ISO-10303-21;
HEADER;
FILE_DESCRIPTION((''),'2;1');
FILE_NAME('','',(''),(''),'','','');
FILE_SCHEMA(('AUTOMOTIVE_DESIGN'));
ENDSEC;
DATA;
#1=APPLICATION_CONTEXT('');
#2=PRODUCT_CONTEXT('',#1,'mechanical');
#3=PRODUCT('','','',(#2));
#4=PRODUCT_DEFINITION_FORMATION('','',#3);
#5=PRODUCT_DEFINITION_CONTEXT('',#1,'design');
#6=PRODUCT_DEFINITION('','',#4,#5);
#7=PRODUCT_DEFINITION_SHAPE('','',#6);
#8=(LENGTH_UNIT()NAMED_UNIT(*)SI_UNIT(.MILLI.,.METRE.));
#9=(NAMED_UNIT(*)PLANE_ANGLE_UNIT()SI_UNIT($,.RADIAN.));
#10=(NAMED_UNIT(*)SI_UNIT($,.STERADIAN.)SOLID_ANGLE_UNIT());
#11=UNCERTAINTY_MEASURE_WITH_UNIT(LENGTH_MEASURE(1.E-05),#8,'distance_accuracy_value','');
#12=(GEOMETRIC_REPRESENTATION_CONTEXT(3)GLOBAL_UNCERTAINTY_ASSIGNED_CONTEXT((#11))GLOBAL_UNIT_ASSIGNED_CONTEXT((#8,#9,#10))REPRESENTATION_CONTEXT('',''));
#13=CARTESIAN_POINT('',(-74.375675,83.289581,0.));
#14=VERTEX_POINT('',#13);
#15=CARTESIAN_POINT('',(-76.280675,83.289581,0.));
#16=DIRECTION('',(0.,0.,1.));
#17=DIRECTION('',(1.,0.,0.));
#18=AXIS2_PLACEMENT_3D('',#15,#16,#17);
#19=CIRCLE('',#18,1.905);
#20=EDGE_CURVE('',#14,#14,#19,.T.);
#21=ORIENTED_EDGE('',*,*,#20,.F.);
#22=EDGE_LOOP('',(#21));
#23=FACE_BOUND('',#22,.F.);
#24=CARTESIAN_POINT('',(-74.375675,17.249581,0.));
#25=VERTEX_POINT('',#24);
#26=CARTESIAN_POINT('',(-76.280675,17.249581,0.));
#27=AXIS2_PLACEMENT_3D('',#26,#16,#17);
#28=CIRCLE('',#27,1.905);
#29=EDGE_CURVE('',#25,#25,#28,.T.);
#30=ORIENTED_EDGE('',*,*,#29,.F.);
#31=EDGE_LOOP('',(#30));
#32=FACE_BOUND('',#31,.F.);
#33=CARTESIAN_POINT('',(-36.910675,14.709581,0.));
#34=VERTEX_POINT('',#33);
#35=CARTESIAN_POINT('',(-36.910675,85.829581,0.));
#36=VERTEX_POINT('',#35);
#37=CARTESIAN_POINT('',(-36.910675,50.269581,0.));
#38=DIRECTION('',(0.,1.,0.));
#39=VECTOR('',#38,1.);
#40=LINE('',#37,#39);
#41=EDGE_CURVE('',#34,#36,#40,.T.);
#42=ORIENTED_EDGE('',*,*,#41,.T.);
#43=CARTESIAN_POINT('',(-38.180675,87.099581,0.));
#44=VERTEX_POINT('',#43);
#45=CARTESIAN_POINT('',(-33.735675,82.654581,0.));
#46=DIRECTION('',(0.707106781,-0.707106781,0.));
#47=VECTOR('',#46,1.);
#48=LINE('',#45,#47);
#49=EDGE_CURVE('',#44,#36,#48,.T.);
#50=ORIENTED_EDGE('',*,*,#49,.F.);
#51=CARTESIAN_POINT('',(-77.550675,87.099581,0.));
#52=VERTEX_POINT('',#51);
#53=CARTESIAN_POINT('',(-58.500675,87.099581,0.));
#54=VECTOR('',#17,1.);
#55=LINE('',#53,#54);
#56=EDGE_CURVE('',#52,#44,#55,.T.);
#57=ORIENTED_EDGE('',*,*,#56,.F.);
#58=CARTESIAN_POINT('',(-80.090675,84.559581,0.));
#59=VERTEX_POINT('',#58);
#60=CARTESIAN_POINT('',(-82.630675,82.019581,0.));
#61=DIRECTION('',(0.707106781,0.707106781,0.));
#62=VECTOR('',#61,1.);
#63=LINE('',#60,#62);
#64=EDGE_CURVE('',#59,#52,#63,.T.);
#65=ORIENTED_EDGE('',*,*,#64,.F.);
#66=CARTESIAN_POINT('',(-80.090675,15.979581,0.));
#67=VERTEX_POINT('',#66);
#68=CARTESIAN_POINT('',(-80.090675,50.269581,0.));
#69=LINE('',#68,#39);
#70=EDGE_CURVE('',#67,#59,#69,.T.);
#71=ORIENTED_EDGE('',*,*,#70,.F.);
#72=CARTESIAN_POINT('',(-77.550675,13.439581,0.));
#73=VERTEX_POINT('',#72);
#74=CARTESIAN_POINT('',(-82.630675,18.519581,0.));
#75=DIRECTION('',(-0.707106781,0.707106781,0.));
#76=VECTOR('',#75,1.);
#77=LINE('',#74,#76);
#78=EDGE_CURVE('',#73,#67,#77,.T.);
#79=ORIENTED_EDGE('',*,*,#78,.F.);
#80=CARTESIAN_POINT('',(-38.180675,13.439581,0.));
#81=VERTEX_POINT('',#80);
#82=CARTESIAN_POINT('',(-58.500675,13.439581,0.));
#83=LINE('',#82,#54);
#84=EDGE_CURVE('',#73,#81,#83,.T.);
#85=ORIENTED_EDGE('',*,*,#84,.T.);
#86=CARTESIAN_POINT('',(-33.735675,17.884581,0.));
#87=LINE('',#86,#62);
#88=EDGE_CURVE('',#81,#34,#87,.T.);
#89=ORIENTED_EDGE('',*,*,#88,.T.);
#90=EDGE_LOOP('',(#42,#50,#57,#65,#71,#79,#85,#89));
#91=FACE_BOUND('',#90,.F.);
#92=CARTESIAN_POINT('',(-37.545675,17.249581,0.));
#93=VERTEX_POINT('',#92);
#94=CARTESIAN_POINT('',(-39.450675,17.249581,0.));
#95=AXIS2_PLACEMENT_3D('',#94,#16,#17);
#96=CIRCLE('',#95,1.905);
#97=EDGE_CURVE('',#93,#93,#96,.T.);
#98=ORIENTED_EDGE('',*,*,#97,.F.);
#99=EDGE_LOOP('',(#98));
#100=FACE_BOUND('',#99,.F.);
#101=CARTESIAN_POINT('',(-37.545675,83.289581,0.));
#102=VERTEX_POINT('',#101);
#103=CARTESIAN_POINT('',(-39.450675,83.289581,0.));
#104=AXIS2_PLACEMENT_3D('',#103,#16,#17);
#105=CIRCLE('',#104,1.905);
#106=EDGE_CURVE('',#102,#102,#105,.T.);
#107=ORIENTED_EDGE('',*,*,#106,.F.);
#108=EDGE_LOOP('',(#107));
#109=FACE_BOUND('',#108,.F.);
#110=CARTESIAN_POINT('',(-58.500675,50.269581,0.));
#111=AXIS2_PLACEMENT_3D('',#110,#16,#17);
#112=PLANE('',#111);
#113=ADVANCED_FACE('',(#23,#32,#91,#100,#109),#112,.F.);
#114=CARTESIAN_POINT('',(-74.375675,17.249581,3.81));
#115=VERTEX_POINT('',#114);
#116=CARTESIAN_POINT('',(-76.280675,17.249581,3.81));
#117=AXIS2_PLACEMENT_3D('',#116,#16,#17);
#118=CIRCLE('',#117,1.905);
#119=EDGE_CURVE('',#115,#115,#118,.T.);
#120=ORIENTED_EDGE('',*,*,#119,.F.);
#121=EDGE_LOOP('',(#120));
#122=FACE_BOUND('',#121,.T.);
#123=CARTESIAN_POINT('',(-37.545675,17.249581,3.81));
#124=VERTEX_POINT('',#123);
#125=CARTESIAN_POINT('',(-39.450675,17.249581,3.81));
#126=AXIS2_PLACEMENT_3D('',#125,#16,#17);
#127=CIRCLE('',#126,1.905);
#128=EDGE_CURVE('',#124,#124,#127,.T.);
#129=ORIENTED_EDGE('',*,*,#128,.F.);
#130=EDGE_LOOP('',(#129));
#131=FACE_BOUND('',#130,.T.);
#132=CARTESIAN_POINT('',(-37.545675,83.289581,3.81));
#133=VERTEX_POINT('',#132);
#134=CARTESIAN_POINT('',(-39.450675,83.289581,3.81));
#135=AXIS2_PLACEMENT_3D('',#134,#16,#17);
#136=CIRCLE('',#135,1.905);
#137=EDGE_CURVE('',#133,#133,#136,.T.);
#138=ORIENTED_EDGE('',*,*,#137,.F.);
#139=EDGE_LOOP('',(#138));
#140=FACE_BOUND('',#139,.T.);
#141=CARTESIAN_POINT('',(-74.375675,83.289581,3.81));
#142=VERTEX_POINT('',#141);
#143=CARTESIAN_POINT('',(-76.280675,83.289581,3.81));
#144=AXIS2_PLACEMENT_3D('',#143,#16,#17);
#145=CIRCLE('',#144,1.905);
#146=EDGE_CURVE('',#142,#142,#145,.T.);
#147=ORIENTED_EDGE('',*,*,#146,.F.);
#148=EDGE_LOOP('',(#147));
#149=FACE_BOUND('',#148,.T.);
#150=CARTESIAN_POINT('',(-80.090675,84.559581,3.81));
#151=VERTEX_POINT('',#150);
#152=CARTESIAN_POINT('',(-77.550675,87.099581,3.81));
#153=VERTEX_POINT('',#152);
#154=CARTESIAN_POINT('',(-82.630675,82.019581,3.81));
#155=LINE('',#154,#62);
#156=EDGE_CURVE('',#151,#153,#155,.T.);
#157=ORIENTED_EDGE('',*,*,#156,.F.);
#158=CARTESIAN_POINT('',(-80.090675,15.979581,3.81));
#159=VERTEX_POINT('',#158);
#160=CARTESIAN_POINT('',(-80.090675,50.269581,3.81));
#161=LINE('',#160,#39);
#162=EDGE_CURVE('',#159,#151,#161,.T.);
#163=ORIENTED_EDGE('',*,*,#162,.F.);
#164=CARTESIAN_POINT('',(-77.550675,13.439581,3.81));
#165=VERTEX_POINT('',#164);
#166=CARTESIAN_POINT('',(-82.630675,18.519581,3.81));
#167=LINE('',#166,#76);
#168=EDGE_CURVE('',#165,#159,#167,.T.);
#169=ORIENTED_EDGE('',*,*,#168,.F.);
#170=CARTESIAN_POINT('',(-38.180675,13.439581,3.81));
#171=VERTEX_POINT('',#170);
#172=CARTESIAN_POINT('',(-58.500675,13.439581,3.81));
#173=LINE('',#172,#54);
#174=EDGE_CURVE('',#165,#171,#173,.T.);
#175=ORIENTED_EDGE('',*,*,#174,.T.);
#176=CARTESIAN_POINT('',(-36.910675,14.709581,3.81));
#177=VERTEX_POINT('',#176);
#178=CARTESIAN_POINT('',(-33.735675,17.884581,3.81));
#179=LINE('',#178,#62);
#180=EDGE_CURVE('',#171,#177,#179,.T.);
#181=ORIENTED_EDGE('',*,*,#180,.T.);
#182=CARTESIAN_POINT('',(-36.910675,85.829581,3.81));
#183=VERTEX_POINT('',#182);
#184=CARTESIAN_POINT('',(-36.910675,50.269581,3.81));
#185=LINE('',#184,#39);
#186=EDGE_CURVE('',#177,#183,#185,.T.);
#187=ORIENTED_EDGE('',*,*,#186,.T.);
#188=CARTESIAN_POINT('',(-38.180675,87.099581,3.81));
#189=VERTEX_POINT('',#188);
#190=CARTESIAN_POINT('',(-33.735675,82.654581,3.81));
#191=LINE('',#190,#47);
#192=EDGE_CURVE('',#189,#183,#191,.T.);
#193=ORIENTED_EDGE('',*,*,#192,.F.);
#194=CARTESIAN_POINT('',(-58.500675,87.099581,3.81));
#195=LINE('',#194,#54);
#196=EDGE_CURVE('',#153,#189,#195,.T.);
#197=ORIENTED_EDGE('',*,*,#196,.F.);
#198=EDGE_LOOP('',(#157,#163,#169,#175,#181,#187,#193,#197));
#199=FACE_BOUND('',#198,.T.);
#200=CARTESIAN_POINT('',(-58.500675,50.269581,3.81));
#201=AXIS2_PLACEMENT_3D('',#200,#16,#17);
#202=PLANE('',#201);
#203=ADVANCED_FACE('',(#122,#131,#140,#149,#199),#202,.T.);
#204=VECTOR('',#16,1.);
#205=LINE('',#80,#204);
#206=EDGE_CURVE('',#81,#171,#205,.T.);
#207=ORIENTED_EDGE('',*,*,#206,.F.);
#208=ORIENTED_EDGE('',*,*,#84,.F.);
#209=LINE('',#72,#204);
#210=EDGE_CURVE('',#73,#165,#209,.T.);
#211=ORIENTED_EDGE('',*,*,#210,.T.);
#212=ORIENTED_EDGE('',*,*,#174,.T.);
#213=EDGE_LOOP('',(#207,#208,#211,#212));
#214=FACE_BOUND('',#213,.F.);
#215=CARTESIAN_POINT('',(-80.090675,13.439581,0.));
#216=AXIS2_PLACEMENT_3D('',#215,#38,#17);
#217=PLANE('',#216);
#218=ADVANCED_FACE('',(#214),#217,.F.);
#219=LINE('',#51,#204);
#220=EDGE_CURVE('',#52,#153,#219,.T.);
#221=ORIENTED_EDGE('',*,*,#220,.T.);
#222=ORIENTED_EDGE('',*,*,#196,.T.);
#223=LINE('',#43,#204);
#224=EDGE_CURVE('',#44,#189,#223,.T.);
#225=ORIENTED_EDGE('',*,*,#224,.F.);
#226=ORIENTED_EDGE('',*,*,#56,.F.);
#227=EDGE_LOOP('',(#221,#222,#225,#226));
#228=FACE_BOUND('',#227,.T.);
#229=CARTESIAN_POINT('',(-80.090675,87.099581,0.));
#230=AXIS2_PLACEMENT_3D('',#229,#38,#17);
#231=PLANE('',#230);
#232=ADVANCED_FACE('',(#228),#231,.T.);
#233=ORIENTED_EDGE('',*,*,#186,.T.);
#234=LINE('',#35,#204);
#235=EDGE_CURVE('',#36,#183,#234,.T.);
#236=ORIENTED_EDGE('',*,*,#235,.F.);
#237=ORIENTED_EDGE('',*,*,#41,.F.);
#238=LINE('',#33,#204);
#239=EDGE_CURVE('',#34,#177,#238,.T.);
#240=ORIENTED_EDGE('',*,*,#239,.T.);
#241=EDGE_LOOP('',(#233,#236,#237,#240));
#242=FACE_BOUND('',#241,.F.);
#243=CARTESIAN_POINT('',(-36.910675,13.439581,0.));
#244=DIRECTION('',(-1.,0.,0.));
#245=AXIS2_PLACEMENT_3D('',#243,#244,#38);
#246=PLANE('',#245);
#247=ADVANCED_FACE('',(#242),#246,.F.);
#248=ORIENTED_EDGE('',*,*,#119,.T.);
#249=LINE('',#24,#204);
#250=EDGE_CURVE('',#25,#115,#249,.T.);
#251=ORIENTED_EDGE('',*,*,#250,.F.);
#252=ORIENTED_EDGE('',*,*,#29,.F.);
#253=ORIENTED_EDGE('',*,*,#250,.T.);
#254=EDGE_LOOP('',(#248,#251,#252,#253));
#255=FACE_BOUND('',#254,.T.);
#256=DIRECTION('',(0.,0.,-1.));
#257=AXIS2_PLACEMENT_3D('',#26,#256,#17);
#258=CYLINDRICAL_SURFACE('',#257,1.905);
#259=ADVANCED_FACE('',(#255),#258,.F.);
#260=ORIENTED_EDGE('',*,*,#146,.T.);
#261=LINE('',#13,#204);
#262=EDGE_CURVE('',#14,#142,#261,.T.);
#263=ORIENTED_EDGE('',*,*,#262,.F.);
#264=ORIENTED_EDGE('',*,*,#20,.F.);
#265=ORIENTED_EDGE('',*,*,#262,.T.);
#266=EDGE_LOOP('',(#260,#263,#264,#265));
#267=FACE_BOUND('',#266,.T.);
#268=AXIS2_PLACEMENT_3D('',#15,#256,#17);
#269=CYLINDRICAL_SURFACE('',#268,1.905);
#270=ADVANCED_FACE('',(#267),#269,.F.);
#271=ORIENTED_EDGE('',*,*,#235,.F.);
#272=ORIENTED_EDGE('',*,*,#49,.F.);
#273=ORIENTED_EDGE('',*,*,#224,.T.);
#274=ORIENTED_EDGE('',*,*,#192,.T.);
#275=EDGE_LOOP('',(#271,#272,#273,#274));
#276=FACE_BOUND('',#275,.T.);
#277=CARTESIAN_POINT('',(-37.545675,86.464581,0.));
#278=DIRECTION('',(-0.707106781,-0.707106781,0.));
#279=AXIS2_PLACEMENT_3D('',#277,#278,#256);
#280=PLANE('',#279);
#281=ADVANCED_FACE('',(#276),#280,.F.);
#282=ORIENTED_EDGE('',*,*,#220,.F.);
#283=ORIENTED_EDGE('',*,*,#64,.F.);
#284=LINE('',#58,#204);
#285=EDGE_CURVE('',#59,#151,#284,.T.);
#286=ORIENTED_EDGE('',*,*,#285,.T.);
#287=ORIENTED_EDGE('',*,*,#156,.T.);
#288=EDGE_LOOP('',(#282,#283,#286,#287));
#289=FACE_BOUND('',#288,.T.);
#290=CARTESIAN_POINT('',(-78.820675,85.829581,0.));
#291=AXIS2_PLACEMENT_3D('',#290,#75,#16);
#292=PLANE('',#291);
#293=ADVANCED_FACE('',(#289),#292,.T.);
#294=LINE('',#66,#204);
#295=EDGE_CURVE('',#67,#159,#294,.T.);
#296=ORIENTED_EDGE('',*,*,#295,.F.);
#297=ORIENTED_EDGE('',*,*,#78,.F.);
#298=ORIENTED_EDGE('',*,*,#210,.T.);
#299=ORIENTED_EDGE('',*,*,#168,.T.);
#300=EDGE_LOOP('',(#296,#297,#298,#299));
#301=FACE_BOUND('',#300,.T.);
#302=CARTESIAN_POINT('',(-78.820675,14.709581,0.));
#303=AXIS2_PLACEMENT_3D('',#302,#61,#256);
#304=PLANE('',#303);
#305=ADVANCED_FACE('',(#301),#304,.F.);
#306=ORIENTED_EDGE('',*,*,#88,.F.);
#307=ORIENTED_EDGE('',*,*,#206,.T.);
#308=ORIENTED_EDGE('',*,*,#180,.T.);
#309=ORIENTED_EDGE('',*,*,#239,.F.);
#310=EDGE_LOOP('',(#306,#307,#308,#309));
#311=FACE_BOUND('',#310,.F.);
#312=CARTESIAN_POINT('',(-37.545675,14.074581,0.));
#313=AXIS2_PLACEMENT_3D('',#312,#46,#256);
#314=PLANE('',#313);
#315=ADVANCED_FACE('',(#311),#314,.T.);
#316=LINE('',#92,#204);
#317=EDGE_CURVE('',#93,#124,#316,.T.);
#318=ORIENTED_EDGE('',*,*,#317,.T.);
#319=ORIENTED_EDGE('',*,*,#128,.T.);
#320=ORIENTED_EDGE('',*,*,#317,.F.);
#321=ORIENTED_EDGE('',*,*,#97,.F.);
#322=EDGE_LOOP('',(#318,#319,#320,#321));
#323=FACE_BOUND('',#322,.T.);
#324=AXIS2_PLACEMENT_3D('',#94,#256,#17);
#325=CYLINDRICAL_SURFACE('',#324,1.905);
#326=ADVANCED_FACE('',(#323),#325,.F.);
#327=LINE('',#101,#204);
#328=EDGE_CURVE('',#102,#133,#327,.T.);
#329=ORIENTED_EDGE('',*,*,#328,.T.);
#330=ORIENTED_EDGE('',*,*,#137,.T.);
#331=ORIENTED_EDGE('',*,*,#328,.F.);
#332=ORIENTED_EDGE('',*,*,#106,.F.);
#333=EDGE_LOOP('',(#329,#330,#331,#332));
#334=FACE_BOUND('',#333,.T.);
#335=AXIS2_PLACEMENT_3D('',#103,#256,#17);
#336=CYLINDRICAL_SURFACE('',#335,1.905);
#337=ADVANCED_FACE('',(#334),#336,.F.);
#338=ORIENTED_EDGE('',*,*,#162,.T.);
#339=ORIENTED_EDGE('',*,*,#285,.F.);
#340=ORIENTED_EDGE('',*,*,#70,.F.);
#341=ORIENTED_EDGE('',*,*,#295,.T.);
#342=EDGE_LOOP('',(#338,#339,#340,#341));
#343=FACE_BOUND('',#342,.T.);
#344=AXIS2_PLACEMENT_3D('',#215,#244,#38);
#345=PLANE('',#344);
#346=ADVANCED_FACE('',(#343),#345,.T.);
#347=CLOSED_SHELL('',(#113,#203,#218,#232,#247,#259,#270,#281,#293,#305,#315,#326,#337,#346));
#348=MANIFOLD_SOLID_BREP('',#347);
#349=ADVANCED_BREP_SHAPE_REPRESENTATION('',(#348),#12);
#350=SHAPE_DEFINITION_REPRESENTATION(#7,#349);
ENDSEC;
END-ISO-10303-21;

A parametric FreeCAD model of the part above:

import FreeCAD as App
import Part
import Sketcher
Q = App.Units.Quantity


def edges_at(feature, points):
    """Names of the edges that pass closest to the given points."""
    edges = feature.Shape.Edges
    near = lambda p: min(range(len(edges)), key=lambda i: edges[i].distToShape(Part.Vertex(*p))[0])
    return sorted({f"Edge{near(p) + 1}" for p in points})


def add_polygon(sketch, points):
    """Adds a closed chain of lines whose ends are joined by coincident constraints."""
    first, n = sketch.GeometryCount, len(points)
    for a, b in zip(points, points[1:] + points[:1]):
        sketch.addGeometry(Part.LineSegment(App.Vector(*a, 0), App.Vector(*b, 0)), False)
    for i in range(n):
        sketch.addConstraint(Sketcher.Constraint("Coincident", first + i, 2, first + (i + 1) % n, 1))

doc = App.newDocument("Part")
body = doc.addObject("PartDesign::Body", "Body")

sketch1 = doc.addObject("Sketcher::SketchObject", "Sketch")
body.addObject(sketch1)
sketch1.AttachmentSupport = (doc.XY_Plane, [""])
sketch1.MapMode = "FlatFace"
add_polygon(sketch1, [(-80.090675, 87.099581), (-80.090675, 13.439581), (-36.910675, 13.439581), (-36.910675, 87.099581)])
sketch1.addGeometry(Part.Circle(App.Vector(-76.280675, 17.249581, 0), App.Vector(0, 0, 1), 1.905), False)
sketch1.addGeometry(Part.Circle(App.Vector(-39.450675, 17.249581, 0), App.Vector(0, 0, 1), 1.905), False)
sketch1.addGeometry(Part.Circle(App.Vector(-76.280675, 83.289581, 0), App.Vector(0, 0, 1), 1.905), False)
sketch1.addGeometry(Part.Circle(App.Vector(-39.450675, 83.289581, 0), App.Vector(0, 0, 1), 1.905), False)
sketch1.addConstraint(Sketcher.Constraint("Vertical", 0))
sketch1.addConstraint(Sketcher.Constraint("Horizontal", 1))
sketch1.addConstraint(Sketcher.Constraint("Vertical", 2))
sketch1.addConstraint(Sketcher.Constraint("Horizontal", 3))
sketch1.addConstraint(Sketcher.Constraint("Equal", 4, 5))
sketch1.addConstraint(Sketcher.Constraint("Equal", 5, 6))
sketch1.addConstraint(Sketcher.Constraint("Equal", 6, 7))
sketch1.addConstraint(Sketcher.Constraint("Horizontal", 4, 3, 5, 3))
sketch1.addConstraint(Sketcher.Constraint("Horizontal", 6, 3, 7, 3))
sketch1.addConstraint(Sketcher.Constraint("Vertical", 4, 3, 6, 3))
sketch1.addConstraint(Sketcher.Constraint("Vertical", 5, 3, 7, 3))
sketch1.addConstraint(Sketcher.Constraint("Diameter", 4, Q("0.15 in")))
sketch1.addConstraint(Sketcher.Constraint("DistanceX", 1, 1, 1, 2, Q("1.7 in")))
sketch1.addConstraint(Sketcher.Constraint("DistanceY", 0, 2, 0, 1, Q("2.9 in")))
sketch1.addConstraint(Sketcher.Constraint("DistanceY", 4, 3, 6, 3, Q("2.6 in")))
sketch1.addConstraint(Sketcher.Constraint("DistanceX", 0, 2, 5, 3, Q("1.6 in")))
sketch1.addConstraint(Sketcher.Constraint("DistanceX", 4, 3, 5, 3, Q("1.45 in")))
sketch1.addConstraint(Sketcher.Constraint("DistanceY", 0, 2, 4, 3, Q("0.15 in")))
sketch1.addConstraint(Sketcher.Constraint("DistanceY", -1, 1, 4, 3, 17.249581))
sketch1.addConstraint(Sketcher.Constraint("DistanceX", 4, 3, -1, 1, 76.280675))
pad1 = doc.addObject("PartDesign::Pad", "Pad")
body.addObject(pad1)
pad1.Profile = sketch1
pad1.Length = Q("0.15 in")
doc.recompute()

chamfer = doc.addObject("PartDesign::Chamfer", "Chamfer")
body.addObject(chamfer)
chamfer.Base = (pad1, edges_at(pad1, [(-36.911, 13.44, 1.905), (-36.911, 87.1, 1.905)]))
chamfer.Size = Q("0.05 in")
doc.recompute()

chamfer2 = doc.addObject("PartDesign::Chamfer", "Chamfer001")
body.addObject(chamfer2)
chamfer2.Base = (chamfer, edges_at(chamfer, [(-80.091, 13.44, 1.905), (-80.091, 87.1, 1.905)]))
chamfer2.Size = Q("0.1 in")

doc.recompute()
